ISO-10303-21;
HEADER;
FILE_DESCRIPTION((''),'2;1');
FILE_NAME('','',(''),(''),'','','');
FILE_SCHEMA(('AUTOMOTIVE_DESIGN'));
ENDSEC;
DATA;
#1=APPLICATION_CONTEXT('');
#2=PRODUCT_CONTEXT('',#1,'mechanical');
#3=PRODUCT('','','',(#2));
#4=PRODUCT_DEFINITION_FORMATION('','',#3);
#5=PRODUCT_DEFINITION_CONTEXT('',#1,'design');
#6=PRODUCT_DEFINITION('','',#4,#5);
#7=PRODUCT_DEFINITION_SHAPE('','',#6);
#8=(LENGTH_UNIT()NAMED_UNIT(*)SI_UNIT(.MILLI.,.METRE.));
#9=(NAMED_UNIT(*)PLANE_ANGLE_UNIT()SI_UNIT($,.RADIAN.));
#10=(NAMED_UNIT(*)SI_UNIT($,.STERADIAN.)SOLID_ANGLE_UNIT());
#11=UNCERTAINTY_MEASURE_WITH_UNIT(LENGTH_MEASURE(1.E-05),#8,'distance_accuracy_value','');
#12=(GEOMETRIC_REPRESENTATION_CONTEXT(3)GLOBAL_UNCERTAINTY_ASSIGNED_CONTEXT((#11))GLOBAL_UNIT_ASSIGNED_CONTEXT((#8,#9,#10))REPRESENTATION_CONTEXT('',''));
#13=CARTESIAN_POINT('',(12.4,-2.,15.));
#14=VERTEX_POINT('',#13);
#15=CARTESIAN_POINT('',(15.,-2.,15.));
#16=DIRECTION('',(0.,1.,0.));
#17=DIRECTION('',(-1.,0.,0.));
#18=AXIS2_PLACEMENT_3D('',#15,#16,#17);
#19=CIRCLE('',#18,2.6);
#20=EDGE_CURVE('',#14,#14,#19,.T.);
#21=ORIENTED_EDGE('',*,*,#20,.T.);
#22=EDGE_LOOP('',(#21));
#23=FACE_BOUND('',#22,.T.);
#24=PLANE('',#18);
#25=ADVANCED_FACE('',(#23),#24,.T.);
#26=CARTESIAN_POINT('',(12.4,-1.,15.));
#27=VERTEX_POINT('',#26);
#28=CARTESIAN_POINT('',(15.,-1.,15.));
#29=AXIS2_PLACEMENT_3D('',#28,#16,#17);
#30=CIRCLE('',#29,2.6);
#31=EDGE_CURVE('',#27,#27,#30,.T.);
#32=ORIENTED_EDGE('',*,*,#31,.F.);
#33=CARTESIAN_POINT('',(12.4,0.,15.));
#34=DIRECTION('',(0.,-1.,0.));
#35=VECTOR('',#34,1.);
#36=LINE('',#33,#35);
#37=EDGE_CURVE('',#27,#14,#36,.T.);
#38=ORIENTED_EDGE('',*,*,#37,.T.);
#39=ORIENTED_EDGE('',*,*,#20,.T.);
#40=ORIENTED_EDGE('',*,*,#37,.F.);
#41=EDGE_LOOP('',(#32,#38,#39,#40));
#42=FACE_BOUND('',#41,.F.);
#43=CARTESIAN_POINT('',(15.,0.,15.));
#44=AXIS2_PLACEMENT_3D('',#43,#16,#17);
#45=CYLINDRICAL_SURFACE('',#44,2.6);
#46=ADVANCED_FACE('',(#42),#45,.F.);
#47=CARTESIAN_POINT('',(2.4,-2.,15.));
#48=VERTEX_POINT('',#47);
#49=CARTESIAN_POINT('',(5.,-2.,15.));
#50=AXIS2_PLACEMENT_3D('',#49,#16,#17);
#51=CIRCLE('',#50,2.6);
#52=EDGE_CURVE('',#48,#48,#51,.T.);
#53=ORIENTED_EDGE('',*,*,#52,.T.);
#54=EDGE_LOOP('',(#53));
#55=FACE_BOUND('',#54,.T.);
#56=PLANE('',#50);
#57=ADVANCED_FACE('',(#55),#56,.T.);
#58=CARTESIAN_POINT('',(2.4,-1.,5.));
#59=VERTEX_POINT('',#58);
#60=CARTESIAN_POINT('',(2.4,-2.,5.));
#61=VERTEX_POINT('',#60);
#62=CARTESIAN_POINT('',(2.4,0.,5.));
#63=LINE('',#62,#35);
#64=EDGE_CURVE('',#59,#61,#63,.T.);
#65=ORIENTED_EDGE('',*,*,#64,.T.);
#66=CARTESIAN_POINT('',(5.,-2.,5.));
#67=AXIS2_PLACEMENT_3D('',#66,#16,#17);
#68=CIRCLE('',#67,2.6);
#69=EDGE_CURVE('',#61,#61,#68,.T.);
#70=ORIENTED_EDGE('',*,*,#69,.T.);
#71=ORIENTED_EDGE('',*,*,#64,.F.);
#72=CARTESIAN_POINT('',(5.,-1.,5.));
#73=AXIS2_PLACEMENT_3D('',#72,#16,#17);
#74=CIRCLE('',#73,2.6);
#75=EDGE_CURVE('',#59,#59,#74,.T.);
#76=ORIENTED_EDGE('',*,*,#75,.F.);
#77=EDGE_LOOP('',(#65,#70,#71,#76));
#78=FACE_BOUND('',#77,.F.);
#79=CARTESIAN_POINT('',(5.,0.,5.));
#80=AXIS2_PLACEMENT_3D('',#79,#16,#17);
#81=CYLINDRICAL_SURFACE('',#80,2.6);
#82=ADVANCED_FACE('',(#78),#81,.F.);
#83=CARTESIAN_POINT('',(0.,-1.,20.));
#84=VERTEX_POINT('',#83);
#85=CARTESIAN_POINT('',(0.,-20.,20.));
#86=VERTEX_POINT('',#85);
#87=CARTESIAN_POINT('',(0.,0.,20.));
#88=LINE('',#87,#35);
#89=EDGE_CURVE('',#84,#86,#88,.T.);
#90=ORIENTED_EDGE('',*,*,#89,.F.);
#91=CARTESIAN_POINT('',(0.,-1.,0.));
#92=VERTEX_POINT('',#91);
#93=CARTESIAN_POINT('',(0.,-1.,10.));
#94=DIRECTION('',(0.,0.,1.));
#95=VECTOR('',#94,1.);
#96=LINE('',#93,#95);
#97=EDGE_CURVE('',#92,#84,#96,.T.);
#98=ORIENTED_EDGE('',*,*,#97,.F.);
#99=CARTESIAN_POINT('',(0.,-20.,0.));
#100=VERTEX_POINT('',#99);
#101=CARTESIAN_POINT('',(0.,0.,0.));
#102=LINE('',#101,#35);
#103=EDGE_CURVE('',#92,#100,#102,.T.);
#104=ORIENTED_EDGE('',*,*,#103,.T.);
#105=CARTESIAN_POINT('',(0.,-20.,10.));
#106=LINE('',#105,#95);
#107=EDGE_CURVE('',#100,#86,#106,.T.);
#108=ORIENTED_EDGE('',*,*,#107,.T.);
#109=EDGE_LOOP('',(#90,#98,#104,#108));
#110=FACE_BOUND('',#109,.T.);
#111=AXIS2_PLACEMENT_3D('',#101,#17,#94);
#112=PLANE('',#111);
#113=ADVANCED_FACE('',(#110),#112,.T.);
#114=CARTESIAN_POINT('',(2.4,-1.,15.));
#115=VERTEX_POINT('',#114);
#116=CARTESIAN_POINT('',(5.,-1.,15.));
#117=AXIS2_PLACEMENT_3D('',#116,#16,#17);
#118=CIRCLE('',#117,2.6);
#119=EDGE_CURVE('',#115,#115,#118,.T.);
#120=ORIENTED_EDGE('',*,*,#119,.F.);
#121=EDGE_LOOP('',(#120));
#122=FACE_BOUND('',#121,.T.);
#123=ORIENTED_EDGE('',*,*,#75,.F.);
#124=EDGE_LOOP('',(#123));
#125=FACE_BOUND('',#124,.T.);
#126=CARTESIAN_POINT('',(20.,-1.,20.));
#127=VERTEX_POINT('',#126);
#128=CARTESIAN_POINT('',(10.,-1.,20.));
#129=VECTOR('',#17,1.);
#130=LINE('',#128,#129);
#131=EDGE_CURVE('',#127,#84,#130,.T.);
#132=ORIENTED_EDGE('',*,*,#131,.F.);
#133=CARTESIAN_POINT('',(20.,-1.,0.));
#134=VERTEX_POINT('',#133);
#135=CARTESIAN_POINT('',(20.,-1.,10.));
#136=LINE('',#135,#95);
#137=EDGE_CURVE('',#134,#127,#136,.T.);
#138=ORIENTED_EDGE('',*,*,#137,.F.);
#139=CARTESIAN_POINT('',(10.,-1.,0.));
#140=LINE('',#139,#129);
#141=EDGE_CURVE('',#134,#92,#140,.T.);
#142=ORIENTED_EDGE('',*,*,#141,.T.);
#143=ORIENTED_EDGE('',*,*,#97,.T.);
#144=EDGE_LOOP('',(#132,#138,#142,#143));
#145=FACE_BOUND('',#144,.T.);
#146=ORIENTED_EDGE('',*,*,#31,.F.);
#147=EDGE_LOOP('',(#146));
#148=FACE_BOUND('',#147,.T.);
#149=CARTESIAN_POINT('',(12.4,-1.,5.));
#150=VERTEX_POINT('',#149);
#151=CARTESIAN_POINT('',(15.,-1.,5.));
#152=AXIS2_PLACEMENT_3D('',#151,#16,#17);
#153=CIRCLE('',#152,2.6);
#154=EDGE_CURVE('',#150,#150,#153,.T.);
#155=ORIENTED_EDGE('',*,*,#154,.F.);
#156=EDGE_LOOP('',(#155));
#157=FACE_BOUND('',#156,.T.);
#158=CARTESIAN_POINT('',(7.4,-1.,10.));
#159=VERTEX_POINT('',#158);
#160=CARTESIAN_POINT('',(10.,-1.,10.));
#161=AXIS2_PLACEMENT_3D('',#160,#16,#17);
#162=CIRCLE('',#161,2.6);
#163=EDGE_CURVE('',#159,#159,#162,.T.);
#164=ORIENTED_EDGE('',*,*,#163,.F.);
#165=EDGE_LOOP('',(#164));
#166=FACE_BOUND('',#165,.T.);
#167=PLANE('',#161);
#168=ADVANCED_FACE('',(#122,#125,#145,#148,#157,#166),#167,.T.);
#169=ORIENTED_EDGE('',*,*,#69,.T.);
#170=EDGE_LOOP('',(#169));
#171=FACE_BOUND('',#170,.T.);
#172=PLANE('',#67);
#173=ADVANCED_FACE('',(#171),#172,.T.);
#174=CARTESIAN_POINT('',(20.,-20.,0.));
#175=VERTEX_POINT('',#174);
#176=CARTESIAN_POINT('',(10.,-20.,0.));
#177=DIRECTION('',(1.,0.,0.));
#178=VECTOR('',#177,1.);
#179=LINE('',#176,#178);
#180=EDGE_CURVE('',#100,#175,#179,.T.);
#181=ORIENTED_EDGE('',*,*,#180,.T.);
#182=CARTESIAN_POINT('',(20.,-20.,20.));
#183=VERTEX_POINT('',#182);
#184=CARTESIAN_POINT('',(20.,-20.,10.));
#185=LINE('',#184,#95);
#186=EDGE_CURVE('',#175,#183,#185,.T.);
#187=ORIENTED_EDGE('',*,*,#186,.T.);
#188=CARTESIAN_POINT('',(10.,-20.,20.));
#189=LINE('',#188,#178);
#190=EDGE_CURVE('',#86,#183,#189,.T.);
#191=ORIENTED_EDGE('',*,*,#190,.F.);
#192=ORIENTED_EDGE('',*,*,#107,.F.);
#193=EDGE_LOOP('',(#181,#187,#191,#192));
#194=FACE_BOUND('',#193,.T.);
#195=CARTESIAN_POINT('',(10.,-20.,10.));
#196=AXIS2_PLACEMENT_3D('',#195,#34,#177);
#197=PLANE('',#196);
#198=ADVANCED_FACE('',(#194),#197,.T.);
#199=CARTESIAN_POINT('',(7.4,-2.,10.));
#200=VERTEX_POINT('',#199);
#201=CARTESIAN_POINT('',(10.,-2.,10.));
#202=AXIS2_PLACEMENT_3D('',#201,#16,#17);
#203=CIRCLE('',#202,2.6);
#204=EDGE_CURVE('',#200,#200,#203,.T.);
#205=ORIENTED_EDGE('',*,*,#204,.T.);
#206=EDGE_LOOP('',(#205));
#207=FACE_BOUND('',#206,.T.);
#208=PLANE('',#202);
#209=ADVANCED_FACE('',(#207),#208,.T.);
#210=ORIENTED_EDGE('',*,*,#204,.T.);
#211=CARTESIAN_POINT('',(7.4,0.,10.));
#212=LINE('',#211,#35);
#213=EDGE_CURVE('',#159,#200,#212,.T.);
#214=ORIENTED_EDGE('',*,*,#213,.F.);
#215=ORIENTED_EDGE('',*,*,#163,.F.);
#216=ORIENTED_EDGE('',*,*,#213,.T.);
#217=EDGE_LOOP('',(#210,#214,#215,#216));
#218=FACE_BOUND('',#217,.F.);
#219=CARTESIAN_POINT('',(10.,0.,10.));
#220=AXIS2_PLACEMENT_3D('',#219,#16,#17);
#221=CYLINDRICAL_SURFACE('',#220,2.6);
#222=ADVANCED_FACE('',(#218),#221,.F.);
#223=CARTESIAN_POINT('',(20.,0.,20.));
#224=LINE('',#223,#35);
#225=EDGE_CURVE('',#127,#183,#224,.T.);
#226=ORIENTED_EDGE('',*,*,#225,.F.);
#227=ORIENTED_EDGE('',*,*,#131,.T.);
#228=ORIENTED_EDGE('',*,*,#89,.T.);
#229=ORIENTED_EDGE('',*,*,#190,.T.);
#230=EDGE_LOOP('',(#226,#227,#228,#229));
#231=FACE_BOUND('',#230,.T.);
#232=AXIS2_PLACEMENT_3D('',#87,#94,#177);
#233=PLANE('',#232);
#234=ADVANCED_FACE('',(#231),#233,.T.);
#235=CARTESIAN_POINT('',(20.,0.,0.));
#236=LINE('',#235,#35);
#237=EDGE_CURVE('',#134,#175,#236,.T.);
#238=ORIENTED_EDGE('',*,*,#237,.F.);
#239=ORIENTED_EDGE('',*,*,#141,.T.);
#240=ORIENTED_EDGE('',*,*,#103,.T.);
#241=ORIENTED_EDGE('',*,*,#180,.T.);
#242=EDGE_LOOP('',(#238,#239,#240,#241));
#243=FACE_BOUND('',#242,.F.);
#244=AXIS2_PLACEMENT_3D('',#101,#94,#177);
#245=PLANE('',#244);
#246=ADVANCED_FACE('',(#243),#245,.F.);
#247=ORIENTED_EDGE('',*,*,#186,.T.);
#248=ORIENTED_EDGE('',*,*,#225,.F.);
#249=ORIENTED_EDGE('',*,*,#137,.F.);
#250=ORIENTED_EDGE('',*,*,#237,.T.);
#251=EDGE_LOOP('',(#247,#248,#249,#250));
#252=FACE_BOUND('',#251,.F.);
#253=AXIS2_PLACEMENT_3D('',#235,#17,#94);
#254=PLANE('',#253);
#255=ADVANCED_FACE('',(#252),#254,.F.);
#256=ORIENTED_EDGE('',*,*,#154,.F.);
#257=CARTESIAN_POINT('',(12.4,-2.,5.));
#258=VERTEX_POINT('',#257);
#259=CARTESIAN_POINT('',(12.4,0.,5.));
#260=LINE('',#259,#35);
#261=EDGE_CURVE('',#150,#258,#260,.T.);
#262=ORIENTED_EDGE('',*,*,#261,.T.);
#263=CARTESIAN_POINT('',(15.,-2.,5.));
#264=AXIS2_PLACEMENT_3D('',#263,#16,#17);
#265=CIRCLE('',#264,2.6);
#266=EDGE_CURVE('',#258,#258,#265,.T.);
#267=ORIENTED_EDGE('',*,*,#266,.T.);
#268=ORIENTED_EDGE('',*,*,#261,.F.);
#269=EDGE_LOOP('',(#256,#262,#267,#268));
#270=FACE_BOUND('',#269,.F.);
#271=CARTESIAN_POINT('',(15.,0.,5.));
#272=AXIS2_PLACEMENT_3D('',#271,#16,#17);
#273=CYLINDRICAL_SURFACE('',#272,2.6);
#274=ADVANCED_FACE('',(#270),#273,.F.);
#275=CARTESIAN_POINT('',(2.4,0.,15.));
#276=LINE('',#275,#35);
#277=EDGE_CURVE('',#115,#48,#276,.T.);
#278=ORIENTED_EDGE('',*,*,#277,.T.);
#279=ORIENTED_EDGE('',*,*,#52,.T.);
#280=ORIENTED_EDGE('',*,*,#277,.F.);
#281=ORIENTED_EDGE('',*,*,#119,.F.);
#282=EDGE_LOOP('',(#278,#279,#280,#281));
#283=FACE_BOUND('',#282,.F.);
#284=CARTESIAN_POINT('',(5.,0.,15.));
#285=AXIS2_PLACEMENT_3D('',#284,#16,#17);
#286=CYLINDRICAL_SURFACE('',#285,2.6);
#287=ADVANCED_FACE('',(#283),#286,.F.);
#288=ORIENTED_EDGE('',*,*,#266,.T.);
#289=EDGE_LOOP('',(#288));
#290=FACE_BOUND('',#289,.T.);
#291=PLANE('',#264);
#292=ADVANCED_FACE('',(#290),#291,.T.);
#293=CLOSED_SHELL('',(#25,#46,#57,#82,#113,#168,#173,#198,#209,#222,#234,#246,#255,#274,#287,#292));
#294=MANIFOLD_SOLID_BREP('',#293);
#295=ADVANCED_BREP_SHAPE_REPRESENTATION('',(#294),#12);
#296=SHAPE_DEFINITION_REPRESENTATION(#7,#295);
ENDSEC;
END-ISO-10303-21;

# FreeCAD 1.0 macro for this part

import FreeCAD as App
import Part
import Sketcher

V = App.Vector
Q = App.Units.Quantity


def add_polygon(sketch, points):
    """Adds a closed chain of lines whose ends are joined by coincident constraints."""
    first, n = sketch.GeometryCount, len(points)
    for a, b in zip(points, points[1:] + points[:1]):
        sketch.addGeometry(Part.LineSegment(App.Vector(*a, 0), App.Vector(*b, 0)), False)
    for i in range(n):
        sketch.addConstraint(Sketcher.Constraint("Coincident", first + i, 2, first + (i + 1) % n, 1))

doc = App.newDocument("Part")
body = doc.addObject("PartDesign::Body", "Body")

sketch1 = doc.addObject("Sketcher::SketchObject", "Sketch")
body.addObject(sketch1)
sketch1.AttachmentSupport = (doc.XZ_Plane, [""])
sketch1.MapMode = "FlatFace"
add_polygon(sketch1, [(0, 20), (0, 0), (20, 0), (20, 20)])
sketch1.addConstraint([
    Sketcher.Constraint("Vertical", 0),
    Sketcher.Constraint("Horizontal", 1),
    Sketcher.Constraint("Vertical", 2),
    Sketcher.Constraint("Horizontal", 3),
    Sketcher.Constraint("Coincident", 0, 2, -1, 1),
    Sketcher.Constraint("Equal", 3, 0),
    Sketcher.Constraint("DistanceX", 1, 1, 1, 2, Q("20 mm")),
])
pad1 = doc.addObject("PartDesign::Pad", "Pad")
body.addObject(pad1)
pad1.Profile = sketch1
pad1.Length = 20

sketch2 = doc.addObject("Sketcher::SketchObject", "Sketch001")
body.addObject(sketch2)
sketch2.AttachmentSupport = (doc.XZ_Plane, [""])
sketch2.MapMode = "FlatFace"
add_polygon(sketch2, [(20, 20), (20, 0), (0, 0), (0, 20)])
sketch2.addGeometry(Part.Circle(V(15, 5, 0), V(0, 0, 1), 2.6), False)
sketch2.addGeometry(Part.Circle(V(10, 10, 0), V(0, 0, 1), 2.6), False)
sketch2.addGeometry(Part.Circle(V(5, 5, 0), V(0, 0, 1), 2.6), False)
sketch2.addGeometry(Part.Circle(V(15, 15, 0), V(0, 0, 1), 2.6), False)
sketch2.addConstraint([
    Sketcher.Constraint("Vertical", 0),
    Sketcher.Constraint("Horizontal", 1),
    Sketcher.Constraint("Vertical", 2),
    Sketcher.Constraint("Horizontal", 3),
    Sketcher.Constraint("Coincident", 1, 2, -1, 1),
    Sketcher.Constraint("Equal", 4, 5),
    Sketcher.Constraint("Equal", 5, 6),
    Sketcher.Constraint("Equal", 6, 7),
    Sketcher.Constraint("Horizontal", 4, 3, 6, 3),
    Sketcher.Constraint("Vertical", 4, 3, 7, 3),
    Sketcher.Constraint("Equal", 3, 0),
    Sketcher.Constraint("Diameter", 4, Q("5.2 mm")),
    Sketcher.Constraint("DistanceX", 1, 2, 1, 1, Q("20 mm")),
    Sketcher.Constraint("DistanceX", -1, 1, 4, 3, Q("15 mm")),
    Sketcher.Constraint("DistanceY", -1, 1, 4, 3, Q("5 mm")),
    Sketcher.Constraint("DistanceX", -1, 1, 5, 3, Q("10 mm")),
    Sketcher.Constraint("DistanceY", -1, 1, 5, 3, Q("10 mm")),
    Sketcher.Constraint("DistanceX", -1, 1, 6, 3, Q("5 mm")),
    Sketcher.Constraint("DistanceY", -1, 1, 7, 3, Q("15 mm")),
])
pocket1 = doc.addObject("PartDesign::Pocket", "Pocket")
body.addObject(pocket1)
pocket1.Profile = sketch2
pocket1.Length = 1
pocket1.Reversed = True

sketch3 = doc.addObject("Sketcher::SketchObject", "Sketch002")
body.addObject(sketch3)
sketch3.AttachmentSupport = (doc.XZ_Plane, [""])
sketch3.MapMode = "FlatFace"
sketch3.addGeometry([
    Part.Circle(V(15, 15, 0), V(0, 0, 1), 2.6),
    Part.Circle(V(5, 15, 0), V(0, 0, 1), 2.6),
    Part.Circle(V(10, 10, 0), V(0, 0, 1), 2.6),
    Part.Circle(V(5, 5, 0), V(0, 0, 1), 2.6),
    Part.Circle(V(15, 5, 0), V(0, 0, 1), 2.6),
], False)
sketch3.addConstraint([
    Sketcher.Constraint("Equal", 0, 1),
    Sketcher.Constraint("Equal", 1, 2),
    Sketcher.Constraint("Equal", 2, 3),
    Sketcher.Constraint("Equal", 3, 4),
    Sketcher.Constraint("Horizontal", 0, 3, 1, 3),
    Sketcher.Constraint("Horizontal", 3, 3, 4, 3),
    Sketcher.Constraint("Vertical", 1, 3, 3, 3),
    Sketcher.Constraint("Vertical", 0, 3, 4, 3),
    Sketcher.Constraint("Diameter", 0, Q("5.2 mm")),
    Sketcher.Constraint("DistanceX", -1, 1, 0, 3, Q("15 mm")),
    Sketcher.Constraint("DistanceY", -1, 1, 0, 3, Q("15 mm")),
    Sketcher.Constraint("DistanceX", -1, 1, 1, 3, Q("5 mm")),
    Sketcher.Constraint("DistanceX", -1, 1, 2, 3, Q("10 mm")),
    Sketcher.Constraint("DistanceY", -1, 1, 2, 3, Q("10 mm")),
    Sketcher.Constraint("DistanceY", -1, 1, 3, 3, Q("5 mm")),
])
pocket2 = doc.addObject("PartDesign::Pocket", "Pocket001")
body.addObject(pocket2)
pocket2.Profile = sketch3
pocket2.Length = 2
pocket2.Reversed = True

doc.recompute()
